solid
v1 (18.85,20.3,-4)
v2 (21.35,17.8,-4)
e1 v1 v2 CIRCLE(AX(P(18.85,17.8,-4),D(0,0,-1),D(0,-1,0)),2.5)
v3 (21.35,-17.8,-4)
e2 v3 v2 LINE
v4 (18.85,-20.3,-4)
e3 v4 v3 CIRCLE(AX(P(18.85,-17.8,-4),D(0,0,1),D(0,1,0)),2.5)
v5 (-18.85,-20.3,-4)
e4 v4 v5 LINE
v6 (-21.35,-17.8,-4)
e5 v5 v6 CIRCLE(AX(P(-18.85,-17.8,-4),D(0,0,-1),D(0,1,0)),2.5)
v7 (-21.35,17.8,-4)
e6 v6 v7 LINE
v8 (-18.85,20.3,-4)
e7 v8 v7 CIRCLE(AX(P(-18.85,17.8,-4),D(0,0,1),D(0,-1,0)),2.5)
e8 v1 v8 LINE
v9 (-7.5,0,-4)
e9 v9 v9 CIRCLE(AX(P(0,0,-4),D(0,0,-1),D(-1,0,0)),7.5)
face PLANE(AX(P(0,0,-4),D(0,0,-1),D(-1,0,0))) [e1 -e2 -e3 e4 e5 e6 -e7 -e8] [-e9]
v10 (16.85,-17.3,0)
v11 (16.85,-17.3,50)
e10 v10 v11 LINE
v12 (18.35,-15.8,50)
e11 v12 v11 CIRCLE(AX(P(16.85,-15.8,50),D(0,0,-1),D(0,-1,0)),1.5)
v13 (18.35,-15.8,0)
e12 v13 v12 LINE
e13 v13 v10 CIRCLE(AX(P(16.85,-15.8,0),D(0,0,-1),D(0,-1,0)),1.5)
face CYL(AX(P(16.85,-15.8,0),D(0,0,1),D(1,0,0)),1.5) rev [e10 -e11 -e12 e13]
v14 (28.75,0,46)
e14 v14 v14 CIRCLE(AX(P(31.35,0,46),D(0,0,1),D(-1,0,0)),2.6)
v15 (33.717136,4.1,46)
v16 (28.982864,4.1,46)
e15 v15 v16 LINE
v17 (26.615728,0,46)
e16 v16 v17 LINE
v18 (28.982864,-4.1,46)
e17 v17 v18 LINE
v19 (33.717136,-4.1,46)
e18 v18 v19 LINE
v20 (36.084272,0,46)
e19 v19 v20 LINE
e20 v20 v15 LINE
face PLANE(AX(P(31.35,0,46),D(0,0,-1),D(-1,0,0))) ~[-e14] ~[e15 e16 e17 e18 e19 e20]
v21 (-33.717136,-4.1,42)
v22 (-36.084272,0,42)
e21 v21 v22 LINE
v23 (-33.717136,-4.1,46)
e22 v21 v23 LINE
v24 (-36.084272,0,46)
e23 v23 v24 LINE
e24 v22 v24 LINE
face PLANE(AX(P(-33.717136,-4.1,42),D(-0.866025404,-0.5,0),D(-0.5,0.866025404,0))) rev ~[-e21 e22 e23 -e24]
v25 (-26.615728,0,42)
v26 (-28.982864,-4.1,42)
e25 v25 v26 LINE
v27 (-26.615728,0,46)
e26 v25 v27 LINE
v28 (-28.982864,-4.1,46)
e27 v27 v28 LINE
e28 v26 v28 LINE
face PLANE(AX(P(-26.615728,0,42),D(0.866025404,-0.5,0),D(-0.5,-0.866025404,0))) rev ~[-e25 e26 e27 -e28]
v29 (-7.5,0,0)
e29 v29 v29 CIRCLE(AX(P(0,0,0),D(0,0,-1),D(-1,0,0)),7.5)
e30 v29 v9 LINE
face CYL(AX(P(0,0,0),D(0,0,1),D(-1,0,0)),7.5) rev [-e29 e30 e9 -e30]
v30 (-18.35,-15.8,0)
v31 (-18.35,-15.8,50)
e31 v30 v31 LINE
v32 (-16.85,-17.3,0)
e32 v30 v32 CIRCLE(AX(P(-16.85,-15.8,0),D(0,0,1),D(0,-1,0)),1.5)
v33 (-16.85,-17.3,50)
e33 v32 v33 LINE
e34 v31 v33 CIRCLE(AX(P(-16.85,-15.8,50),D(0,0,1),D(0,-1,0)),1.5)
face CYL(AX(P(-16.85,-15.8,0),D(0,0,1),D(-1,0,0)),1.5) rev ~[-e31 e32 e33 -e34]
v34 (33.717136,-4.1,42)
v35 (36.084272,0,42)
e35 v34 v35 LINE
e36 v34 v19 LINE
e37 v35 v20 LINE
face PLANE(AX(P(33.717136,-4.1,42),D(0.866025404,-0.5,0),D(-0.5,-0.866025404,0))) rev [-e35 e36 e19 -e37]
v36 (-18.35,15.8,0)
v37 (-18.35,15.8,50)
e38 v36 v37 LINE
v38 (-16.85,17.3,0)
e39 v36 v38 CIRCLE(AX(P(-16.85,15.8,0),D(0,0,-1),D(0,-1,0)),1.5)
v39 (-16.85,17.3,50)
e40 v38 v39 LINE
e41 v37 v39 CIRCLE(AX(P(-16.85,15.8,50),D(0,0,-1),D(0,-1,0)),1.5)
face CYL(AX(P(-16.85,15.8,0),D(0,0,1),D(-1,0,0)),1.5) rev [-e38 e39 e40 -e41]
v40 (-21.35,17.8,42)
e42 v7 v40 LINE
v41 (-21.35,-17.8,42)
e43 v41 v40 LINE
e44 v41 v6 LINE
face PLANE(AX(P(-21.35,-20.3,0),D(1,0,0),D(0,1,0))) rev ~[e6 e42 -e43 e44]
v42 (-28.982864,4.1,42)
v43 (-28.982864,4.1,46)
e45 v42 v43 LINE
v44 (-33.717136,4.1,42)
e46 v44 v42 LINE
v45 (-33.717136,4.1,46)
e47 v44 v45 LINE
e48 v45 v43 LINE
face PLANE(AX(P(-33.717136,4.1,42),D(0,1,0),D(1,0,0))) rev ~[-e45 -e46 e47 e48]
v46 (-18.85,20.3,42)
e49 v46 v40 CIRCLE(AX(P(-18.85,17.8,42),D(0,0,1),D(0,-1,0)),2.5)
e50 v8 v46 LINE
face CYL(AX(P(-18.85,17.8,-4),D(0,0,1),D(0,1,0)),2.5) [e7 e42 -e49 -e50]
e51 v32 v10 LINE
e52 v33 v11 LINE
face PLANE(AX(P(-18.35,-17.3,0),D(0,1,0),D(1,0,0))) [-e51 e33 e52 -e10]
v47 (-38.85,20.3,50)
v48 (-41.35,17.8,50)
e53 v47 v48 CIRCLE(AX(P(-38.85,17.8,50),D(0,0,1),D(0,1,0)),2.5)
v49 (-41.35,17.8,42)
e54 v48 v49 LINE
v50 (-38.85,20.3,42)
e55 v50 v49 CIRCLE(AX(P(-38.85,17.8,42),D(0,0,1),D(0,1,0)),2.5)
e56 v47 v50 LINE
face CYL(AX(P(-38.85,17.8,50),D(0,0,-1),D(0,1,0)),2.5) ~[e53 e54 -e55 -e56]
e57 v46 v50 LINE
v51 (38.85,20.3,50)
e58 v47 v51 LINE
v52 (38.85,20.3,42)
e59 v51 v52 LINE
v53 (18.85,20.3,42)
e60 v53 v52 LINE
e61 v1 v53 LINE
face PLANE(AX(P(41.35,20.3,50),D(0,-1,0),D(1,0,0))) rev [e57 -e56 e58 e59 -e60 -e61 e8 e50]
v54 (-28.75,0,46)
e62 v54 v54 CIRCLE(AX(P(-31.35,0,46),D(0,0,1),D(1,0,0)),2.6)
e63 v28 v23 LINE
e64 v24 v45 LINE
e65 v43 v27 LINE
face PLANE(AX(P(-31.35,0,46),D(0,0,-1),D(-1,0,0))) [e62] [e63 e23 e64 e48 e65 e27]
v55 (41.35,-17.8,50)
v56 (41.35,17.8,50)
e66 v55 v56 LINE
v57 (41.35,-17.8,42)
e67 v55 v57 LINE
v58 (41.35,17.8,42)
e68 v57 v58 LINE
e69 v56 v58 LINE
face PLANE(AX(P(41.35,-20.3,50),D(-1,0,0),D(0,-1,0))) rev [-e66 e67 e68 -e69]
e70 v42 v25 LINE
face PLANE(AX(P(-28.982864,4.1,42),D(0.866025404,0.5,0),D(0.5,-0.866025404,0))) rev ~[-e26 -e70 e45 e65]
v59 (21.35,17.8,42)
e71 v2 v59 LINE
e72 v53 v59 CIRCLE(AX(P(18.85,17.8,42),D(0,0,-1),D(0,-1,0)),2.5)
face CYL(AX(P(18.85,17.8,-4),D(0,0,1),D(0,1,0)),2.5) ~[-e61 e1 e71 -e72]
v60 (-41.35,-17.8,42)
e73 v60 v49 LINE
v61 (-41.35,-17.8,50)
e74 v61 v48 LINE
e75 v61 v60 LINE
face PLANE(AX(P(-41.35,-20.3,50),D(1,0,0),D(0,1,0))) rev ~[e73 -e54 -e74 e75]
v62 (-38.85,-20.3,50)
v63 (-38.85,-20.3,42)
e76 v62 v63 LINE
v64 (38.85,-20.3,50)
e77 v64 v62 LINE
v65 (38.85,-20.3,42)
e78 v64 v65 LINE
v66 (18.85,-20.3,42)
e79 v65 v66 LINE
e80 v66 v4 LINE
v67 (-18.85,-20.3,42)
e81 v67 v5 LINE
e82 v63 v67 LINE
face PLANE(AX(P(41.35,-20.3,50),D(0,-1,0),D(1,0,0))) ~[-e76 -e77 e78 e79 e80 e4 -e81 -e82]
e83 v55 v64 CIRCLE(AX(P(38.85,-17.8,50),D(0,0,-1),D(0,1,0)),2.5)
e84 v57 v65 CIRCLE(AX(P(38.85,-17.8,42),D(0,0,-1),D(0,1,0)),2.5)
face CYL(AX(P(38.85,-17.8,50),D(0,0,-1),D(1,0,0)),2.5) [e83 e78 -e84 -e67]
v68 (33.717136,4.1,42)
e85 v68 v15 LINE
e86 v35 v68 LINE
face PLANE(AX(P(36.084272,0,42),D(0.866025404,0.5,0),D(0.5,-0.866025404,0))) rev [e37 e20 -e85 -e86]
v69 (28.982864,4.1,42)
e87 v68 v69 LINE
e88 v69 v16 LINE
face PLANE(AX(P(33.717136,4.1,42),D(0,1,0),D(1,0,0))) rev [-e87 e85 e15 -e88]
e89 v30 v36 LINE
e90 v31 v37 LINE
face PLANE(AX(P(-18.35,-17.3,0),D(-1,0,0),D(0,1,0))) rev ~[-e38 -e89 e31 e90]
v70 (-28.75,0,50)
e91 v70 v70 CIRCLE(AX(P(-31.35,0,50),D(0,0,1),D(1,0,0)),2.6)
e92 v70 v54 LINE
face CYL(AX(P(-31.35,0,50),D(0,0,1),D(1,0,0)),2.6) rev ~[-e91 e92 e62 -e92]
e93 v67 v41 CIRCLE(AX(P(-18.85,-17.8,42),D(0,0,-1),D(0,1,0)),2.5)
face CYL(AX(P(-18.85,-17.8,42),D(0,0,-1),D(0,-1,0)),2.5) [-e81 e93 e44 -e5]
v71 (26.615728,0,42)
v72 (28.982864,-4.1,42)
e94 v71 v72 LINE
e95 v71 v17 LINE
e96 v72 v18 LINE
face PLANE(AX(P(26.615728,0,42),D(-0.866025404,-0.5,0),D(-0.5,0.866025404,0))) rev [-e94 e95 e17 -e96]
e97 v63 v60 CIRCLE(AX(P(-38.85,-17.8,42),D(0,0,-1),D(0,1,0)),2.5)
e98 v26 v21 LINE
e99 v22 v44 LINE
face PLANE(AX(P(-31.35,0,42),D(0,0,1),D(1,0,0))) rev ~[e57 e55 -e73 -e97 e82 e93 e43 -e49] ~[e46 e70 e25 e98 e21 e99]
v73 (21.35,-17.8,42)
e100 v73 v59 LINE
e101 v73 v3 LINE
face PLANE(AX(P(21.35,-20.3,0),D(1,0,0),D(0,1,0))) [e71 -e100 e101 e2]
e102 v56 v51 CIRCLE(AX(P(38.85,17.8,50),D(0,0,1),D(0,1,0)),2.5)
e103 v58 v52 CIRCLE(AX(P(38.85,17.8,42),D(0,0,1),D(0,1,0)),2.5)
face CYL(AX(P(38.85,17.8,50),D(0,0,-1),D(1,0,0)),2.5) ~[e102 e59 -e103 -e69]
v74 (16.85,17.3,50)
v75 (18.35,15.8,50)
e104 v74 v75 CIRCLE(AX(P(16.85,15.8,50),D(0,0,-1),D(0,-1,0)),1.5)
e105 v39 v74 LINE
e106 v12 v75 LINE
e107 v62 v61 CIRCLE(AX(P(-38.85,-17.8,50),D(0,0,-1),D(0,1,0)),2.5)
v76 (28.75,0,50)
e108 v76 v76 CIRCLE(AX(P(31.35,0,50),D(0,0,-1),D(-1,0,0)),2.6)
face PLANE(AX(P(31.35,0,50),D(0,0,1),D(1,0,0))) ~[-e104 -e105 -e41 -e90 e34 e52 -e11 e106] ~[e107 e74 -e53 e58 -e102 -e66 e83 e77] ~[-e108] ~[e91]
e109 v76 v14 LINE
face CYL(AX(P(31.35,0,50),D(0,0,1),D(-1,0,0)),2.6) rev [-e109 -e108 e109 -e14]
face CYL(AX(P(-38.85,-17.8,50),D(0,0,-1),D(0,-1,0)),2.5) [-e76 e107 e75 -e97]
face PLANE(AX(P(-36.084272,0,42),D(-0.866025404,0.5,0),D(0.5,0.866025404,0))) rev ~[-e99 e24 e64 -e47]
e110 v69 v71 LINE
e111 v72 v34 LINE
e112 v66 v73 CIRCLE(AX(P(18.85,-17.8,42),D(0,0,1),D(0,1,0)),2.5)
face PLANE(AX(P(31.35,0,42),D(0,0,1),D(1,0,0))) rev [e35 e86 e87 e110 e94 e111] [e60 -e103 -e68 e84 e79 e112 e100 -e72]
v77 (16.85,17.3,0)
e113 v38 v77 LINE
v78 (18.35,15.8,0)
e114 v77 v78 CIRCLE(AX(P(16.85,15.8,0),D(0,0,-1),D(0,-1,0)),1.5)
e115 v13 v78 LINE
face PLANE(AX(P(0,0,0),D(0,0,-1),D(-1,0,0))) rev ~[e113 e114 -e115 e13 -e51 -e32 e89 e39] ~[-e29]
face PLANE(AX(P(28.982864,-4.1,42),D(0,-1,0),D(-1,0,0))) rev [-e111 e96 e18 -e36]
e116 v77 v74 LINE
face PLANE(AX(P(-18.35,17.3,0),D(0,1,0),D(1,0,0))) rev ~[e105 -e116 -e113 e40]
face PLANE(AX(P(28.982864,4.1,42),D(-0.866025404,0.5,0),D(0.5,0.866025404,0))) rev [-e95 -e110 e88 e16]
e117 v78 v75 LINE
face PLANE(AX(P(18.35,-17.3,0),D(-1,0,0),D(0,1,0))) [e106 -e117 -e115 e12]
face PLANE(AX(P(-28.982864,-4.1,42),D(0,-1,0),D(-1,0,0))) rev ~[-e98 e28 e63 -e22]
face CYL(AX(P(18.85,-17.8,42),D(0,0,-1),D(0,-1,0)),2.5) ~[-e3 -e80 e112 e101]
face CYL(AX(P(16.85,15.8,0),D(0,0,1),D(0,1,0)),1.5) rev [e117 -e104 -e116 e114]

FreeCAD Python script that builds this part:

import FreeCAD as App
import Part
import Sketcher
from FreeCAD import Vector
Q = App.Units.Quantity


def edges_at(feature, points):
    """Names of the edges that pass closest to the given points."""
    edges = feature.Shape.Edges
    near = lambda p: min(range(len(edges)), key=lambda i: edges[i].distToShape(Part.Vertex(*p))[0])
    return sorted({f"Edge{near(p) + 1}" for p in points})


def add_polygon(sketch, points):
    """Adds a closed chain of lines whose ends are joined by coincident constraints."""
    first, n = sketch.GeometryCount, len(points)
    for a, b in zip(points, points[1:] + points[:1]):
        sketch.addGeometry(Part.LineSegment(App.Vector(*a, 0), App.Vector(*b, 0)), False)
    for i in range(n):
        sketch.addConstraint(Sketcher.Constraint("Coincident", first + i, 2, first + (i + 1) % n, 1))

doc = App.newDocument("Part")
body = doc.addObject("PartDesign::Body", "Body")

# Sketch on XY plane
sketch1 = body.newObject("Sketcher::SketchObject", "Sketch")
sketch1.AttachmentSupport = (doc.getObject("XY_Plane"), [""])
sketch1.MapMode = "FlatFace"
add_polygon(sketch1, [(-21, 20), (-21, -20), (21, -20), (21, 20)])  # lines 0-3
add_polygon(sketch1, [(18, -17), (-18, -17), (-18, 17), (18, 17)])  # lines 4-7
sketch1.addConstraint([
    Sketcher.Constraint("Vertical", 0),
    Sketcher.Constraint("Horizontal", 1),
    Sketcher.Constraint("Vertical", 2),
    Sketcher.Constraint("Horizontal", 3),
    Sketcher.Constraint("Horizontal", 4),
    Sketcher.Constraint("Vertical", 5),
    Sketcher.Constraint("Horizontal", 6),
    Sketcher.Constraint("Vertical", 7),
    Sketcher.Constraint("Symmetric", 0, 2, 2, 2, -1, 1),
    Sketcher.Constraint("Symmetric", 4, 2, 6, 2, -1, 1),
    Sketcher.Constraint("DistanceX", 1, 1, 1, 2, 42.7),
    Sketcher.Constraint("DistanceX", 4, 2, 4, 1, 36.7),
    Sketcher.Constraint("DistanceY", 0, 2, 0, 1, 40.6),
    Sketcher.Constraint("DistanceY", 5, 1, 5, 2, 34.6),
])
pad1 = body.newObject("PartDesign::Pad", "Pad")
pad1.Profile = sketch1
pad1.Length = 50

# Sketch on XY plane
sketch2 = body.newObject("Sketcher::SketchObject", "Sketch001")
sketch2.AttachmentSupport = (doc.getObject("XY_Plane"), [""])
sketch2.MapMode = "FlatFace"
add_polygon(sketch2, [(21, 20), (21, -20), (-21, -20), (-21, 20)])  # lines 0-3
sketch2.addGeometry(Part.Circle(Vector(0, 0, 0), Vector(0, 0, 1), 8), False)  # 4
sketch2.addConstraint([
    Sketcher.Constraint("Vertical", 0),
    Sketcher.Constraint("Horizontal", 1),
    Sketcher.Constraint("Vertical", 2),
    Sketcher.Constraint("Horizontal", 3),
    Sketcher.Constraint("Coincident", 4, 3, -1, 1),
    Sketcher.Constraint("Symmetric", 0, 2, 2, 2, -1, 1),
    Sketcher.Constraint("Diameter", 4, 15.0),
    Sketcher.Constraint("DistanceX", 1, 2, 1, 1, 42.7),
    Sketcher.Constraint("DistanceY", 0, 2, 0, 1, 40.6),
])
pad2 = body.newObject("PartDesign::Pad", "Pad001")
pad2.Profile = sketch2
pad2.Length = 4
pad2.Reversed = True

# Sketch on XY plane
sketch3 = body.newObject("Sketcher::SketchObject", "Sketch002")
sketch3.AttachmentSupport = (doc.getObject("XY_Plane"), [""])
sketch3.MapMode = "FlatFace"
sketch3.AttachmentOffset = App.Placement(Vector(0, 0, 50), App.Rotation())
add_polygon(sketch3, [(-41, 20), (-41, -20), (-21, -20), (-21, 20)])  # lines 0-3
sketch3.addConstraint([
    Sketcher.Constraint("Vertical", 0),
    Sketcher.Constraint("Horizontal", 1),
    Sketcher.Constraint("Vertical", 2),
    Sketcher.Constraint("Horizontal", 3),
    Sketcher.Constraint("DistanceX", 1, 1, 1, 2, 20.0),
    Sketcher.Constraint("DistanceY", 0, 2, 0, 1, 40.6),
    Sketcher.Constraint("DistanceY", 0, 2, -1, 1, 20.3),
    Sketcher.Constraint("DistanceX", 0, 2, -1, 1, 41.35),
])
pad3 = body.newObject("PartDesign::Pad", "Pad002")
pad3.Profile = sketch3
pad3.Length = 8
pad3.Reversed = True

# Sketch on XY plane
sketch4 = body.newObject("Sketcher::SketchObject", "Sketch003")
sketch4.AttachmentSupport = (doc.getObject("XY_Plane"), [""])
sketch4.MapMode = "FlatFace"
sketch4.AttachmentOffset = App.Placement(Vector(0, 0, 50), App.Rotation())
sketch4.addGeometry(Part.Circle(Vector(-31.4, 0, 0), Vector(0, 0, 1), 2.6), False)
sketch4.addConstraint([
    Sketcher.Constraint("PointOnObject", 0, 3, -1),
    Sketcher.Constraint("Diameter", 0, 5.2),
    Sketcher.Constraint("DistanceX", 0, 3, -1, 1, 31.35),
])
pocket1 = body.newObject("PartDesign::Pocket", "Pocket")
pocket1.Profile = sketch4
pocket1.Type = "ThroughAll"

# Sketch on XY plane
sketch5 = body.newObject("Sketcher::SketchObject", "Sketch004")
sketch5.AttachmentSupport = (doc.getObject("XY_Plane"), [""])
sketch5.MapMode = "FlatFace"
sketch5.AttachmentOffset = App.Placement(Vector(0, 0, 42), App.Rotation())
add_polygon(sketch5, [(-36.1, 0), (-33.7, 4.1), (-29, 4.1), (-26.6, 0), (-29, -4.1), (-33.7, -4.1)])  # lines 0-5
sketch5.addConstraint([
    Sketcher.Constraint("Horizontal", 1),
    Sketcher.Constraint("Horizontal", 4),
    Sketcher.Constraint("Symmetric", 1, 2, 3, 2, -1),
    Sketcher.Constraint("PointOnObject", 2, 2, -1),
    Sketcher.Constraint("PointOnObject", 5, 2, -1),
    Sketcher.Constraint("Parallel", 0, 3),
    Sketcher.Constraint("Parallel", 2, 5),
    Sketcher.Constraint("Angle", 0, Q("60 deg")),
    Sketcher.Constraint("DistanceY", -1, 1, 0, 2, 4.1),
    Sketcher.Constraint("DistanceX", 1, 1, 1, 2, 4.734272),
    Sketcher.Constraint("DistanceX", 0, 2, -1, 1, 33.717136),
])
pocket2 = body.newObject("PartDesign::Pocket", "Pocket001")
pocket2.Profile = sketch5
pocket2.Length = 4
pocket2.Reversed = True
doc.recompute()

mirrored = body.newObject("PartDesign::Mirrored", "Mirrored")
mirrored.Originals = [pad3, pocket1, pocket2]
mirrored.MirrorPlane = (doc.getObject("YZ_Plane"), [""])
body.Tip = mirrored
doc.recompute()

fillet = body.newObject("PartDesign::Fillet", "Fillet")
fillet.Base = (mirrored, edges_at(mirrored, [
    (-21.35, 20.3, 19),
    (-21.35, -20.3, 19),
    (-41.35, -20.3, 46),
    (-41.35, 20.3, 46),
    (21.35, -20.3, 19),
    (21.35, 20.3, 19),
    (41.35, 20.3, 46),
    (41.35, -20.3, 46),
]))
fillet.Radius = 2.5
doc.recompute()

fillet2 = body.newObject("PartDesign::Fillet", "Fillet001")
fillet2.Base = (fillet, edges_at(fillet, [
    (-18.35, 17.3, 25),
    (-18.35, -17.3, 25),
    (18.35, -17.3, 25),
    (18.35, 17.3, 25),
]))
fillet2.Radius = 1.5

doc.recompute()
